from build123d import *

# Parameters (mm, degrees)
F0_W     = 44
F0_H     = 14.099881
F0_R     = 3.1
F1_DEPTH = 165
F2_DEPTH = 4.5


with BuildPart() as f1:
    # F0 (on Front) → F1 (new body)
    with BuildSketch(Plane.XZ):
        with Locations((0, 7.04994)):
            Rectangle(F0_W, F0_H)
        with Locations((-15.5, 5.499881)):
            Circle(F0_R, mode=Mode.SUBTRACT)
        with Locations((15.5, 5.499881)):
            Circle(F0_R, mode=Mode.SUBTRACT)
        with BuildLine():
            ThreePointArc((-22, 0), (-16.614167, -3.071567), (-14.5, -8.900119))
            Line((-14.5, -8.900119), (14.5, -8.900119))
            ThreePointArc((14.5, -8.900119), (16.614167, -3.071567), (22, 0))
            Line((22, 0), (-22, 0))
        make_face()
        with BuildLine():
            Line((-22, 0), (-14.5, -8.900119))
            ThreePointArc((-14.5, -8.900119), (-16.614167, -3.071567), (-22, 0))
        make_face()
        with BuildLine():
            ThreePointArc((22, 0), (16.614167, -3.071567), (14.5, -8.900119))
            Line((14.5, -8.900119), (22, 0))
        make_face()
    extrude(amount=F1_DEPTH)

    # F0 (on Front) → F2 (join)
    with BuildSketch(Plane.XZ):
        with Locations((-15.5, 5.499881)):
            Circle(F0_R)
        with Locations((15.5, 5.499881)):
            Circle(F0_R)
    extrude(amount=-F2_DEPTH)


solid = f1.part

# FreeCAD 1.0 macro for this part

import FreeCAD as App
import Part
import Sketcher

V = App.Vector

doc = App.newDocument("Part")
body = doc.addObject("PartDesign::Body", "Body")
body.AllowCompound = True

sketch1 = body.newObject("Sketcher::SketchObject", "Sketch")
sketch1.AttachmentSupport = (doc.getObject("XZ_Plane"), [""])
sketch1.MapMode = "FlatFace"
sketch1.addGeometry(Part.LineSegment(V(-14.5, -8.9, 0), V(14.5, -8.9, 0)), False)
sketch1.addGeometry(Part.LineSegment(V(14.5, -8.9, 0), V(22, 0, 0)), False)
sketch1.addGeometry(Part.LineSegment(V(22, 0, 0), V(22, 14.1, 0)), False)
sketch1.addGeometry(Part.LineSegment(V(22, 14.1, 0), V(-22, 14.1, 0)), False)
sketch1.addGeometry(Part.LineSegment(V(-22, 14.1, 0), V(-22, 0, 0)), False)
sketch1.addGeometry(Part.LineSegment(V(-22, 0, 0), V(-14.5, -8.9, 0)), False)
sketch1.addGeometry(Part.Circle(V(15.5, 5.5, 0), V(0, 0, 1), 3.1), False)
sketch1.addGeometry(Part.Circle(V(-15.5, 5.5, 0), V(0, 0, 1), 3.1), False)
sketch1.addConstraint(Sketcher.Constraint("Coincident", 0, 2, 1, 1))
sketch1.addConstraint(Sketcher.Constraint("Coincident", 1, 2, 2, 1))
sketch1.addConstraint(Sketcher.Constraint("Coincident", 2, 2, 3, 1))
sketch1.addConstraint(Sketcher.Constraint("Coincident", 3, 2, 4, 1))
sketch1.addConstraint(Sketcher.Constraint("Coincident", 4, 2, 5, 1))
sketch1.addConstraint(Sketcher.Constraint("Coincident", 5, 2, 0, 1))
sketch1.addConstraint(Sketcher.Constraint("Horizontal", 0))
sketch1.addConstraint(Sketcher.Constraint("Vertical", 2))
sketch1.addConstraint(Sketcher.Constraint("Horizontal", 3))
sketch1.addConstraint(Sketcher.Constraint("Vertical", 4))
sketch1.addConstraint(Sketcher.Constraint("Equal", 6, 7))
sketch1.addConstraint(Sketcher.Constraint("Symmetric", 1, 2, 4, 2, -1, 1))
sketch1.addConstraint(Sketcher.Constraint("Symmetric", 6, 3, 7, 3, -2))
sketch1.addConstraint(Sketcher.Constraint("PointOnObject", 1, 2, -1))
sketch1.addConstraint(Sketcher.Constraint("Equal", 1, 5))
sketch1.addConstraint(Sketcher.Constraint("Diameter", 6, 6.2))
sketch1.addConstraint(Sketcher.Constraint("DistanceX", 0, 1, 0, 2, 29.0))
sketch1.addConstraint(Sketcher.Constraint("DistanceX", 3, 2, 3, 1, 44.0))
sketch1.addConstraint(Sketcher.Constraint("DistanceX", 7, 3, 6, 3, 31.0))
sketch1.addConstraint(Sketcher.Constraint("DistanceY", 0, 2, 2, 2, 23.0))
sketch1.addConstraint(Sketcher.Constraint("DistanceY", 0, 2, 6, 3, 14.4))
sketch1.addConstraint(Sketcher.Constraint("DistanceY", 2, 1, 2, 2, 14.09988))
pad1 = body.newObject("PartDesign::Pad", "Pad")
pad1.Profile = sketch1
pad1.Length = 165

sketch2 = body.newObject("Sketcher::SketchObject", "Sketch001")
sketch2.AttachmentSupport = (doc.getObject("XZ_Plane"), [""])
sketch2.MapMode = "FlatFace"
sketch2.addGeometry(Part.Circle(V(-15.5, 5.5, 0), V(0, 0, 1), 3.1), False)
sketch2.addGeometry(Part.Circle(V(15.5, 5.5, 0), V(0, 0, 1), 3.1), False)
sketch2.addConstraint(Sketcher.Constraint("Equal", 0, 1))
sketch2.addConstraint(Sketcher.Constraint("Symmetric", 0, 3, 1, 3, -2))
sketch2.addConstraint(Sketcher.Constraint("Diameter", 0, 6.2))
sketch2.addConstraint(Sketcher.Constraint("DistanceX", 0, 3, 1, 3, 31.0))
sketch2.addConstraint(Sketcher.Constraint("DistanceY", -1, 1, 0, 3, 5.499881))
pad2 = body.newObject("PartDesign::Pad", "Pad001")
pad2.Profile = sketch2
pad2.Length = 4.5
pad2.Reversed = True

doc.recompute()
